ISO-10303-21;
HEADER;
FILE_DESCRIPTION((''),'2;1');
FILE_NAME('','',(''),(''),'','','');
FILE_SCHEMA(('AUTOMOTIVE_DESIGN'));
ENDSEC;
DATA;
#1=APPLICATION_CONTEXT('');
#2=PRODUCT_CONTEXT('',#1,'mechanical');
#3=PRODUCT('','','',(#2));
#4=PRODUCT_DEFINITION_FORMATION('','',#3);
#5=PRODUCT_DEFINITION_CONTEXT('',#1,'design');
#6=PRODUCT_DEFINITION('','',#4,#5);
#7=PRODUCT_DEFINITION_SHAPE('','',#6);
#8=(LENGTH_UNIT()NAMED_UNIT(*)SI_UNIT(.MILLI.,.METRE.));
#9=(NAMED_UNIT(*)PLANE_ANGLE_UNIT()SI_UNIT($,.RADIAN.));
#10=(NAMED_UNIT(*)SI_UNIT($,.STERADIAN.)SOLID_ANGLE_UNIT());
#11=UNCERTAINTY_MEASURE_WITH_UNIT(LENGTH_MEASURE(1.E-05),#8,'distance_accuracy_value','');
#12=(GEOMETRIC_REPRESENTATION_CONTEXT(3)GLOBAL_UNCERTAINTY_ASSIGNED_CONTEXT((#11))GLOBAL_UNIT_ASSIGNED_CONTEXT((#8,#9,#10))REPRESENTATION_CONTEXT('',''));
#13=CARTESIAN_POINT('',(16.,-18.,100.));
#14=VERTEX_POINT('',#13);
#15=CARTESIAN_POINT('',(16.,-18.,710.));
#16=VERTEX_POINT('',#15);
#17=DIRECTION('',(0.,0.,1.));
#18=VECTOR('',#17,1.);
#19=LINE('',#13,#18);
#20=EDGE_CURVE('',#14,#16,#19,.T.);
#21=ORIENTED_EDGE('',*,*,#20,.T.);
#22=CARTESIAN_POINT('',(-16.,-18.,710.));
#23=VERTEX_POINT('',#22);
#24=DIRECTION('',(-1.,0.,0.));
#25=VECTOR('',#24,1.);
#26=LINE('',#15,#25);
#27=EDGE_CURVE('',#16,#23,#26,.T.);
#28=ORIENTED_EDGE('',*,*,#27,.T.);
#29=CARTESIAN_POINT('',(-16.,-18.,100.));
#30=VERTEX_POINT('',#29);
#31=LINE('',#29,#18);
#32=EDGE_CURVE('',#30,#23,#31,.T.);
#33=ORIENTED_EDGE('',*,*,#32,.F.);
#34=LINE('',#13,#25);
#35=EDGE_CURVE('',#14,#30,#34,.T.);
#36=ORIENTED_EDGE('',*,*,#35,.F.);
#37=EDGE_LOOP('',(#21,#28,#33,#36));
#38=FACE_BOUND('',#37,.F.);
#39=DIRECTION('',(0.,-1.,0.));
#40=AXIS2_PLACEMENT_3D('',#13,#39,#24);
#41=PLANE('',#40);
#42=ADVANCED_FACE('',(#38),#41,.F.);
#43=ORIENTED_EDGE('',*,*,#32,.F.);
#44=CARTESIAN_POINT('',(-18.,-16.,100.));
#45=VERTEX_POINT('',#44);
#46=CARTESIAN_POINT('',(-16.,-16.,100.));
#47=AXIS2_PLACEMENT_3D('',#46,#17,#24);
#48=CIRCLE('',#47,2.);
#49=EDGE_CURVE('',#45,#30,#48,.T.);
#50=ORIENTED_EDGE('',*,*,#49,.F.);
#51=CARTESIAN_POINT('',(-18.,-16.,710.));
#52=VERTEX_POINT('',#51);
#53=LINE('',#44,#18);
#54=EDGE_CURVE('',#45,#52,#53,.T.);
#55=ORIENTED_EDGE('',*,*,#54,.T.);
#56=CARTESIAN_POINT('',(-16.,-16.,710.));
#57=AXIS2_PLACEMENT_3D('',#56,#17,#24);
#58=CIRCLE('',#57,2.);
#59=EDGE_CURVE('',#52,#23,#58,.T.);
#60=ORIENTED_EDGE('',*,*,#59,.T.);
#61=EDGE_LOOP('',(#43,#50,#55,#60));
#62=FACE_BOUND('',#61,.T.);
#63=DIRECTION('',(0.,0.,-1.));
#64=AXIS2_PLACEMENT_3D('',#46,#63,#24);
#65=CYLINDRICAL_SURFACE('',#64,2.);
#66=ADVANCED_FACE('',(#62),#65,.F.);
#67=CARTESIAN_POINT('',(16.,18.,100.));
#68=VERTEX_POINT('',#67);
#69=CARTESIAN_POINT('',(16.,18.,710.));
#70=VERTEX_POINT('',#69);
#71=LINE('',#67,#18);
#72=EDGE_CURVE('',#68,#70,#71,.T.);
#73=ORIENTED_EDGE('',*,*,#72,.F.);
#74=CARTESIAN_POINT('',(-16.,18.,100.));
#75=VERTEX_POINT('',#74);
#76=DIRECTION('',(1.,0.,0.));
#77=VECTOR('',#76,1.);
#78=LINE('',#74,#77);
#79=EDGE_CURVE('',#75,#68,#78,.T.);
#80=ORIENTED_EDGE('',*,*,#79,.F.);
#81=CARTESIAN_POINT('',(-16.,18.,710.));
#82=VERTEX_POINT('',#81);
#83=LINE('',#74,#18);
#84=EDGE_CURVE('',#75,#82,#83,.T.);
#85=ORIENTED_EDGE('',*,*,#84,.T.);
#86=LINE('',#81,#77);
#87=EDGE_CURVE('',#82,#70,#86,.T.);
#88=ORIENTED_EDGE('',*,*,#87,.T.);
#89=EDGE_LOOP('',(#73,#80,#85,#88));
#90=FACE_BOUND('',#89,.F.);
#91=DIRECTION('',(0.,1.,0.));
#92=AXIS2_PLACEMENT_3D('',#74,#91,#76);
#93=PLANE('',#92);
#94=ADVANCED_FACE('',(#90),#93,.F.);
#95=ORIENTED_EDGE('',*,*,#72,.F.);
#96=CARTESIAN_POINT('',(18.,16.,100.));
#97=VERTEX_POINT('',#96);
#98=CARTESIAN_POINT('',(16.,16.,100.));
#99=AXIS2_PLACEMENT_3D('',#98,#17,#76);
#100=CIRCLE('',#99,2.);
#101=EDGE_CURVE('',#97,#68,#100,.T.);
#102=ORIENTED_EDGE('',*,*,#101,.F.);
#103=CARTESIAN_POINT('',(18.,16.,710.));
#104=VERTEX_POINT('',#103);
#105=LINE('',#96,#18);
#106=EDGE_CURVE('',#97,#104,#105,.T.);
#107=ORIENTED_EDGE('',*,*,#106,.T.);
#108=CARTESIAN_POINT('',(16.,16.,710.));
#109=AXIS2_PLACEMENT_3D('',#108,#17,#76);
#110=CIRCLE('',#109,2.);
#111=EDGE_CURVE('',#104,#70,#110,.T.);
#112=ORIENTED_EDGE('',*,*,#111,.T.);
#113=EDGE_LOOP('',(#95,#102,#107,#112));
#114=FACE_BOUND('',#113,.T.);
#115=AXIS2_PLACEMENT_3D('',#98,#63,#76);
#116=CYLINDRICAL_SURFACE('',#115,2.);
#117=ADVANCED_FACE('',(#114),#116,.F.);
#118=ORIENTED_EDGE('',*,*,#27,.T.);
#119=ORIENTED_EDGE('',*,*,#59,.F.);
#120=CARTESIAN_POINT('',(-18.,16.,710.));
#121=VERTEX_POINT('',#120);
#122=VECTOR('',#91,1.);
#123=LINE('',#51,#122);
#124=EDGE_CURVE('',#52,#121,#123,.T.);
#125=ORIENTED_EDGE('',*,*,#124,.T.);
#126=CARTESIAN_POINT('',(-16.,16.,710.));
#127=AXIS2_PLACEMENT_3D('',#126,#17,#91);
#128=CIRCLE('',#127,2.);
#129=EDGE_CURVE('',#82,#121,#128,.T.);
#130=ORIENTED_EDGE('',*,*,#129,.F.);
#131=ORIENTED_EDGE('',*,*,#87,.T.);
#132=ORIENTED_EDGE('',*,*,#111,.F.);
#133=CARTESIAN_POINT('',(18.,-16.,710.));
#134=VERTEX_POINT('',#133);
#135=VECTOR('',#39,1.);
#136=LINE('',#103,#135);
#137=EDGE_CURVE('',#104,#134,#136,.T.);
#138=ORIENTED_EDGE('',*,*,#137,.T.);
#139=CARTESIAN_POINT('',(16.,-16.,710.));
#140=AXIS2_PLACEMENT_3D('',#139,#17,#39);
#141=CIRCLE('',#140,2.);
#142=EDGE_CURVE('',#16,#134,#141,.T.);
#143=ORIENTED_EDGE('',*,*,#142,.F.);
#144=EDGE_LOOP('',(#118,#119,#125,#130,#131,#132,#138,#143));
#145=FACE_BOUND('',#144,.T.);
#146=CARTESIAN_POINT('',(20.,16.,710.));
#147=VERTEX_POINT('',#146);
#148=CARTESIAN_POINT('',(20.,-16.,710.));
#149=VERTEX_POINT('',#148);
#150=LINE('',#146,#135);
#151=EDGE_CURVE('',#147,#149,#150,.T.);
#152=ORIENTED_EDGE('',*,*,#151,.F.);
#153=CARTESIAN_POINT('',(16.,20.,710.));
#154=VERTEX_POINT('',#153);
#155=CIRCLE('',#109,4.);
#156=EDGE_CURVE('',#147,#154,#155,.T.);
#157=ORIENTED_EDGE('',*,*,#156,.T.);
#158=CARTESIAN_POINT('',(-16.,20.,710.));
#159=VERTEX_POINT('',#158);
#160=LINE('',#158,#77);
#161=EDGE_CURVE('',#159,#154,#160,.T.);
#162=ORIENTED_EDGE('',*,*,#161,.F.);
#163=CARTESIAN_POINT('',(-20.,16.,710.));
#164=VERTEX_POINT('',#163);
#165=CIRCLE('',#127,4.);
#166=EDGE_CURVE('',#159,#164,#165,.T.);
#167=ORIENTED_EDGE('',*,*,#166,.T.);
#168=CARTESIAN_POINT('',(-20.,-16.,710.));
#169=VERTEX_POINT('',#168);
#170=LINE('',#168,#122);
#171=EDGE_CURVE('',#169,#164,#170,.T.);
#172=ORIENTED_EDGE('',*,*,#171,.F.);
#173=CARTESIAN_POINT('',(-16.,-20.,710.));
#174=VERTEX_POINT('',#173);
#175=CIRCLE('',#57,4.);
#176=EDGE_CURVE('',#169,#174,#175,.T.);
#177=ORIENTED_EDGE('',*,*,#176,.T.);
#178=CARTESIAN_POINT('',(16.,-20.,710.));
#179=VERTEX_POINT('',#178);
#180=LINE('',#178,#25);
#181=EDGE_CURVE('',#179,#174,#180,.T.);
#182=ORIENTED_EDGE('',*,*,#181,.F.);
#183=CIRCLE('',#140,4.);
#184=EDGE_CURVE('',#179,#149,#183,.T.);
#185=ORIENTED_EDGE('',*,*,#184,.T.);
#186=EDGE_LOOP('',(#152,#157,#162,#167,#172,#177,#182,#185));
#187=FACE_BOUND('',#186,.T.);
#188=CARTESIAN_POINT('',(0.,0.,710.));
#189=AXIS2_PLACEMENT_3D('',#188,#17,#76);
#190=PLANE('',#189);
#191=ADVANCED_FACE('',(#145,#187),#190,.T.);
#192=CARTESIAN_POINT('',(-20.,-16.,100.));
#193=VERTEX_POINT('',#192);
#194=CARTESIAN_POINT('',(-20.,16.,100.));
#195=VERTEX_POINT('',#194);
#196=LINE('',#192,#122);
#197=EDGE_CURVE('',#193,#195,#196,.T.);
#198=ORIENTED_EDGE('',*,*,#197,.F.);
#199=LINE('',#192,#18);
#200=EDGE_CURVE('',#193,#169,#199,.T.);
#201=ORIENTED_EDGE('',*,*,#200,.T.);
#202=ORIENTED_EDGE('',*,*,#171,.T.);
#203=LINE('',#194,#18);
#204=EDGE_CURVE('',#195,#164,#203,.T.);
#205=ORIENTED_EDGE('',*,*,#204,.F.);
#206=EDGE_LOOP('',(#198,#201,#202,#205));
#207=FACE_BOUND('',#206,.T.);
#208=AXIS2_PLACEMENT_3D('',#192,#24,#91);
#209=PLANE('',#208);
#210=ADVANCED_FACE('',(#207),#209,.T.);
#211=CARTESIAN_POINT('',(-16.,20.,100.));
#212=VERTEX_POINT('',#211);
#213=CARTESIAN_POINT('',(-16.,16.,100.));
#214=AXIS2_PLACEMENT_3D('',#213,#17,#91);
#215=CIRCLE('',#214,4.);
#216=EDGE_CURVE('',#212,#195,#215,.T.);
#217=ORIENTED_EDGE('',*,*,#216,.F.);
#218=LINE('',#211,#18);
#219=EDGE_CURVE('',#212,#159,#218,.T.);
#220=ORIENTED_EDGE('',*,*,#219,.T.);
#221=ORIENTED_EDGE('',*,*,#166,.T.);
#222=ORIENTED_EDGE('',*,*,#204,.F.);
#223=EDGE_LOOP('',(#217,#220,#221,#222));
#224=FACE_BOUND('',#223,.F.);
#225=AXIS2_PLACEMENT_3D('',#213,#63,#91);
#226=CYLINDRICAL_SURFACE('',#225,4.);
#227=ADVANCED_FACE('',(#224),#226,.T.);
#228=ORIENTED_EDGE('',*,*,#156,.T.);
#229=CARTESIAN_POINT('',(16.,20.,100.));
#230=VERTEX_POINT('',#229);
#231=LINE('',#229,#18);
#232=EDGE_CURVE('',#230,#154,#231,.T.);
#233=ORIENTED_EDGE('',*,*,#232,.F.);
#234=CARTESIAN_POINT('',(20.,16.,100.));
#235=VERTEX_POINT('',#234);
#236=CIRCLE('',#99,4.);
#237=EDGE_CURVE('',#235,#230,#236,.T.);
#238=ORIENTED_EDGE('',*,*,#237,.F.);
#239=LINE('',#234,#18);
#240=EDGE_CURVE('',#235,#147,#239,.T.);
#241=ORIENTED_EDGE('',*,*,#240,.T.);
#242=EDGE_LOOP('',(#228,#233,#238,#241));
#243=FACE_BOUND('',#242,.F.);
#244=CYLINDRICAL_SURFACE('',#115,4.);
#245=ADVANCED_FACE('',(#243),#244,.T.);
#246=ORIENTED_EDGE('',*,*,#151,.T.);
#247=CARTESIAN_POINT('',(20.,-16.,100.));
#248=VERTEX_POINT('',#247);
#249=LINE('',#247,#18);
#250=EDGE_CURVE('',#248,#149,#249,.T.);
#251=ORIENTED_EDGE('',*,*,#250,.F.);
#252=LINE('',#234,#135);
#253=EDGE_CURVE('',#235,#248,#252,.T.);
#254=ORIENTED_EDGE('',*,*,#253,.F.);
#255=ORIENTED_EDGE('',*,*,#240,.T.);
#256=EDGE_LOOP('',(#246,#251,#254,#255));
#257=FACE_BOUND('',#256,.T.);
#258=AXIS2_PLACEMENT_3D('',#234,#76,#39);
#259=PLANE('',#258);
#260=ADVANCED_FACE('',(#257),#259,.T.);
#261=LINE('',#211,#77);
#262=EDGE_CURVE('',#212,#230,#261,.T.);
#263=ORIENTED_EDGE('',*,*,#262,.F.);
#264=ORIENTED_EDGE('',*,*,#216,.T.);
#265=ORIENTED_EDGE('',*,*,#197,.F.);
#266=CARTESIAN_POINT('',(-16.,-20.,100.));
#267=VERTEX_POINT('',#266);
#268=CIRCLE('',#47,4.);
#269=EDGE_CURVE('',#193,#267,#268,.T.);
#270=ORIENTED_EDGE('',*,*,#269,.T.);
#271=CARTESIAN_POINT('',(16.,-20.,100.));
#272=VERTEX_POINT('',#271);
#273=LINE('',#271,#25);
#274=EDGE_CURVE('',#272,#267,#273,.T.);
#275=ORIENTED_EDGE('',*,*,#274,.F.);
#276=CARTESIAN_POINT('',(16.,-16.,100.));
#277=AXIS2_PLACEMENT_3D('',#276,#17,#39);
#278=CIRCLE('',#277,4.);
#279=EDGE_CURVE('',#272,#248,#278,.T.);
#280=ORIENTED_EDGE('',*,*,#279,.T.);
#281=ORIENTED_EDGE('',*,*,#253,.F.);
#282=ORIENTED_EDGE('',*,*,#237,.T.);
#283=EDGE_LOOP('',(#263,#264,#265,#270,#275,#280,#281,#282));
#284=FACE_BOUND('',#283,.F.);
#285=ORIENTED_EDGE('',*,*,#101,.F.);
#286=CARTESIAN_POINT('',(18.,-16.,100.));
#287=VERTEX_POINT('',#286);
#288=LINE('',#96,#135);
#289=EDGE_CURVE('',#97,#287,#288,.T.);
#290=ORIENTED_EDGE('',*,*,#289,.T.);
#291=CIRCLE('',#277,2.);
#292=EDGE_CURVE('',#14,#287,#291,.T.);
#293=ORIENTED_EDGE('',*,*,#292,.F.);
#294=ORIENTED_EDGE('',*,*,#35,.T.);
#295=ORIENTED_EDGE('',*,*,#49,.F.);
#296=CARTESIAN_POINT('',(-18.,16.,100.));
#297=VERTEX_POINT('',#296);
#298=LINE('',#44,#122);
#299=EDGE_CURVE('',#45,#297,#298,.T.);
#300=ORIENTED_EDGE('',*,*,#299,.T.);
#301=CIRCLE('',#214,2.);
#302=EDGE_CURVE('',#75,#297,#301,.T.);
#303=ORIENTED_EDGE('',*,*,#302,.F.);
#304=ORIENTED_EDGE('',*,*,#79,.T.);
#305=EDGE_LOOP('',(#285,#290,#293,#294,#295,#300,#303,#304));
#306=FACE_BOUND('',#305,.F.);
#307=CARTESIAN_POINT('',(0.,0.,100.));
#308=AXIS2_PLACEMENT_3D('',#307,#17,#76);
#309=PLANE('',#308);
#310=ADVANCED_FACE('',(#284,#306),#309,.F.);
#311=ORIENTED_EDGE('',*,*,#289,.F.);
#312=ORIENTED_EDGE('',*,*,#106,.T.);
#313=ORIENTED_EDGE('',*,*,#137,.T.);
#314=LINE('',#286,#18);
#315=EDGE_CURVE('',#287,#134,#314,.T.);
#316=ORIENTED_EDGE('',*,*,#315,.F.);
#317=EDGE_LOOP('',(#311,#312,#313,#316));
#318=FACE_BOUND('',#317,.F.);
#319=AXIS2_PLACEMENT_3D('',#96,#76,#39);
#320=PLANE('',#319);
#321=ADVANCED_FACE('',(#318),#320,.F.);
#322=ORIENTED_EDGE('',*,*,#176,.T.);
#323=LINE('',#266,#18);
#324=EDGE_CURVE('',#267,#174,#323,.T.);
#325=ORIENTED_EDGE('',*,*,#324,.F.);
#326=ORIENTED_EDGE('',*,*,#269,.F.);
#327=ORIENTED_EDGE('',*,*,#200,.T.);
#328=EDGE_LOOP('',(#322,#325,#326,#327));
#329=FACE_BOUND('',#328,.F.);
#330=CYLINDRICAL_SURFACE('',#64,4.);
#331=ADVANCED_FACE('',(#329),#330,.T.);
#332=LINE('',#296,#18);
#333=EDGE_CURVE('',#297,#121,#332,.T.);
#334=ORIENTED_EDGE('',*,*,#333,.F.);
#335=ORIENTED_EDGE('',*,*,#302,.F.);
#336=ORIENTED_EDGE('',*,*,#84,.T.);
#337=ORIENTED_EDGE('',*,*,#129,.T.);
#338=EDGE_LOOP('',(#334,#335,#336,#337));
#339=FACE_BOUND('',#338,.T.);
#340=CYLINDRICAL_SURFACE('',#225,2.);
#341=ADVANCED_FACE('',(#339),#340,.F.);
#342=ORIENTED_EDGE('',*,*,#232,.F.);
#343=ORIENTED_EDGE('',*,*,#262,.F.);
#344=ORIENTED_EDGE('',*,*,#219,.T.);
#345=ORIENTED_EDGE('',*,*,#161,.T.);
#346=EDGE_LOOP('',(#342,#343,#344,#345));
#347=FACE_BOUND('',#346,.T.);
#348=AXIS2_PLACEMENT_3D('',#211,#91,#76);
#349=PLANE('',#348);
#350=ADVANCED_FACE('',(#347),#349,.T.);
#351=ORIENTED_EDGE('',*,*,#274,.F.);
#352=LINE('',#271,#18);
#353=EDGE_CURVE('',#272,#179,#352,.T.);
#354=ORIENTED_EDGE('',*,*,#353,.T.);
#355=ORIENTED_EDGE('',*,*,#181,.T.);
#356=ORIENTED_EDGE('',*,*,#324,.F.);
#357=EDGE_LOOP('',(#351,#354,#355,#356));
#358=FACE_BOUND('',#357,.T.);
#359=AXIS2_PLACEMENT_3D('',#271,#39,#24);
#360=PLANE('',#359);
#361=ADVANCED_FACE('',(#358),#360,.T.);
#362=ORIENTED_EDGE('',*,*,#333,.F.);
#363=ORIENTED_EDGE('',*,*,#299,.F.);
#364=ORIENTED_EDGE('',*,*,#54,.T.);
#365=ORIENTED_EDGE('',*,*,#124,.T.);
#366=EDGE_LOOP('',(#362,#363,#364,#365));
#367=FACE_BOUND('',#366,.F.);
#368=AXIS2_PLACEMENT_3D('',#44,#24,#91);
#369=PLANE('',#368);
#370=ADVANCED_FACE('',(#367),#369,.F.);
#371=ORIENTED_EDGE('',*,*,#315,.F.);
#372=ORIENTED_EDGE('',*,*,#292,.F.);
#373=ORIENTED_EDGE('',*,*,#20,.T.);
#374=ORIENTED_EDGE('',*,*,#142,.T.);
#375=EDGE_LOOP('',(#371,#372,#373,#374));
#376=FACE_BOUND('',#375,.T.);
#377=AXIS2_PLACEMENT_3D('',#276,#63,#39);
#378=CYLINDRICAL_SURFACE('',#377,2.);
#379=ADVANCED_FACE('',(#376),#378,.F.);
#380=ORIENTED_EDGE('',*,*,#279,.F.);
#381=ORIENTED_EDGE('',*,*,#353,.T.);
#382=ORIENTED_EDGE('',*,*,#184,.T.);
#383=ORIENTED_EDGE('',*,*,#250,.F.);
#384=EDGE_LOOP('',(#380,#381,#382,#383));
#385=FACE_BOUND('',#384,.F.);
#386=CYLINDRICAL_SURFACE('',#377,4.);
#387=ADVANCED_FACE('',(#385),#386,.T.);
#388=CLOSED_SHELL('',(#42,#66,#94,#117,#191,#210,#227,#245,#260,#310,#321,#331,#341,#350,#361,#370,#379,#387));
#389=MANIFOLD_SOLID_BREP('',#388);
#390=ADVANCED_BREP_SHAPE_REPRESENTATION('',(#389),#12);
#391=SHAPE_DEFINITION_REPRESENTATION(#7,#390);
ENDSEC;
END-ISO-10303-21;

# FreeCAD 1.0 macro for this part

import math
import FreeCAD as App
import Part
import Sketcher

V = App.Vector
Q = App.Units.Quantity

doc = App.newDocument("Part")
body = doc.addObject("PartDesign::Body", "Body")

# Sketch on XY plane
sketch1 = body.newObject("Sketcher::SketchObject", "Sketch")
sketch1.AttachmentSupport = (doc.getObject("XY_Plane"), [""])
sketch1.MapMode = "FlatFace"
sketch1.AttachmentOffset = App.Placement(V(0, 0, 100), App.Rotation())
sketch1.addGeometry([
    Part.LineSegment(V(-20, 16, 0), V(-20, -16, 0)),  # 0
    Part.ArcOfCircle(Part.Circle(V(-16, -16, 0), V(0, 0, 1), 4), math.radians(180), math.radians(270)),  # 1
    Part.LineSegment(V(-16, -20, 0), V(16, -20, 0)),  # 2
    Part.ArcOfCircle(Part.Circle(V(16, -16, 0), V(0, 0, 1), 4), math.radians(-90), math.radians(0)),  # 3
    Part.LineSegment(V(20, -16, 0), V(20, 16, 0)),  # 4
    Part.ArcOfCircle(Part.Circle(V(16, 16, 0), V(0, 0, 1), 4), math.radians(0), math.radians(90)),  # 5
    Part.LineSegment(V(16, 20, 0), V(-16, 20, 0)),  # 6
    Part.ArcOfCircle(Part.Circle(V(-16, 16, 0), V(0, 0, 1), 4), math.radians(90), math.radians(180)),  # 7
    Part.ArcOfCircle(Part.Circle(V(-16, 16, 0), V(0, 0, 1), 2), math.radians(90), math.radians(180)),  # 8
    Part.LineSegment(V(-16, 18, 0), V(16, 18, 0)),  # 9
    Part.ArcOfCircle(Part.Circle(V(16, 16, 0), V(0, 0, 1), 2), math.radians(0), math.radians(90)),  # 10
    Part.LineSegment(V(18, 16, 0), V(18, -16, 0)),  # 11
    Part.ArcOfCircle(Part.Circle(V(16, -16, 0), V(0, 0, 1), 2), math.radians(-90), math.radians(0)),  # 12
    Part.LineSegment(V(16, -18, 0), V(-16, -18, 0)),  # 13
    Part.ArcOfCircle(Part.Circle(V(-16, -16, 0), V(0, 0, 1), 2), math.radians(180), math.radians(270)),  # 14
    Part.LineSegment(V(-18, -16, 0), V(-18, 16, 0)),  # 15
], False)
sketch1.addConstraint([
    Sketcher.Constraint("Tangent", 0, 2, 1, 1),
    Sketcher.Constraint("Tangent", 1, 2, 2, 1),
    Sketcher.Constraint("Tangent", 2, 2, 3, 1),
    Sketcher.Constraint("Tangent", 3, 2, 4, 1),
    Sketcher.Constraint("Tangent", 4, 2, 5, 1),
    Sketcher.Constraint("Tangent", 5, 2, 6, 1),
    Sketcher.Constraint("Tangent", 6, 2, 7, 1),
    Sketcher.Constraint("Tangent", 7, 2, 0, 1),
    Sketcher.Constraint("Tangent", 8, 1, 9, 1),
    Sketcher.Constraint("Tangent", 9, 2, 10, 2),
    Sketcher.Constraint("Tangent", 10, 1, 11, 1),
    Sketcher.Constraint("Tangent", 11, 2, 12, 2),
    Sketcher.Constraint("Tangent", 12, 1, 13, 1),
    Sketcher.Constraint("Tangent", 13, 2, 14, 2),
    Sketcher.Constraint("Tangent", 14, 1, 15, 1),
    Sketcher.Constraint("Tangent", 15, 2, 8, 2),
    Sketcher.Constraint("Vertical", 0),
    Sketcher.Constraint("Horizontal", 2),
    Sketcher.Constraint("Vertical", 4),
    Sketcher.Constraint("Horizontal", 6),
    Sketcher.Constraint("Horizontal", 9),
    Sketcher.Constraint("Vertical", 11),
    Sketcher.Constraint("Horizontal", 13),
    Sketcher.Constraint("Vertical", 15),
    Sketcher.Constraint("Coincident", 8, 3, 7, 3),
    Sketcher.Constraint("Coincident", 10, 3, 5, 3),
    Sketcher.Constraint("Coincident", 12, 3, 3, 3),
    Sketcher.Constraint("Equal", 1, 3),
    Sketcher.Constraint("Equal", 3, 5),
    Sketcher.Constraint("Equal", 5, 7),
    Sketcher.Constraint("Equal", 12, 14),
    Sketcher.Constraint("Symmetric", 1, 3, 5, 3, -1, 1),
    Sketcher.Constraint("Equal", 13, 0),
    Sketcher.Constraint("Radius", 1, Q("4 mm")),
    Sketcher.Constraint("Radius", 8, Q("2 mm")),
    Sketcher.Constraint("DistanceX", 0, 2, -1, 1, Q("20 mm")),
])
pad1 = body.newObject("PartDesign::Pad", "Pad")
pad1.Profile = sketch1
pad1.Length = 610

doc.recompute()
